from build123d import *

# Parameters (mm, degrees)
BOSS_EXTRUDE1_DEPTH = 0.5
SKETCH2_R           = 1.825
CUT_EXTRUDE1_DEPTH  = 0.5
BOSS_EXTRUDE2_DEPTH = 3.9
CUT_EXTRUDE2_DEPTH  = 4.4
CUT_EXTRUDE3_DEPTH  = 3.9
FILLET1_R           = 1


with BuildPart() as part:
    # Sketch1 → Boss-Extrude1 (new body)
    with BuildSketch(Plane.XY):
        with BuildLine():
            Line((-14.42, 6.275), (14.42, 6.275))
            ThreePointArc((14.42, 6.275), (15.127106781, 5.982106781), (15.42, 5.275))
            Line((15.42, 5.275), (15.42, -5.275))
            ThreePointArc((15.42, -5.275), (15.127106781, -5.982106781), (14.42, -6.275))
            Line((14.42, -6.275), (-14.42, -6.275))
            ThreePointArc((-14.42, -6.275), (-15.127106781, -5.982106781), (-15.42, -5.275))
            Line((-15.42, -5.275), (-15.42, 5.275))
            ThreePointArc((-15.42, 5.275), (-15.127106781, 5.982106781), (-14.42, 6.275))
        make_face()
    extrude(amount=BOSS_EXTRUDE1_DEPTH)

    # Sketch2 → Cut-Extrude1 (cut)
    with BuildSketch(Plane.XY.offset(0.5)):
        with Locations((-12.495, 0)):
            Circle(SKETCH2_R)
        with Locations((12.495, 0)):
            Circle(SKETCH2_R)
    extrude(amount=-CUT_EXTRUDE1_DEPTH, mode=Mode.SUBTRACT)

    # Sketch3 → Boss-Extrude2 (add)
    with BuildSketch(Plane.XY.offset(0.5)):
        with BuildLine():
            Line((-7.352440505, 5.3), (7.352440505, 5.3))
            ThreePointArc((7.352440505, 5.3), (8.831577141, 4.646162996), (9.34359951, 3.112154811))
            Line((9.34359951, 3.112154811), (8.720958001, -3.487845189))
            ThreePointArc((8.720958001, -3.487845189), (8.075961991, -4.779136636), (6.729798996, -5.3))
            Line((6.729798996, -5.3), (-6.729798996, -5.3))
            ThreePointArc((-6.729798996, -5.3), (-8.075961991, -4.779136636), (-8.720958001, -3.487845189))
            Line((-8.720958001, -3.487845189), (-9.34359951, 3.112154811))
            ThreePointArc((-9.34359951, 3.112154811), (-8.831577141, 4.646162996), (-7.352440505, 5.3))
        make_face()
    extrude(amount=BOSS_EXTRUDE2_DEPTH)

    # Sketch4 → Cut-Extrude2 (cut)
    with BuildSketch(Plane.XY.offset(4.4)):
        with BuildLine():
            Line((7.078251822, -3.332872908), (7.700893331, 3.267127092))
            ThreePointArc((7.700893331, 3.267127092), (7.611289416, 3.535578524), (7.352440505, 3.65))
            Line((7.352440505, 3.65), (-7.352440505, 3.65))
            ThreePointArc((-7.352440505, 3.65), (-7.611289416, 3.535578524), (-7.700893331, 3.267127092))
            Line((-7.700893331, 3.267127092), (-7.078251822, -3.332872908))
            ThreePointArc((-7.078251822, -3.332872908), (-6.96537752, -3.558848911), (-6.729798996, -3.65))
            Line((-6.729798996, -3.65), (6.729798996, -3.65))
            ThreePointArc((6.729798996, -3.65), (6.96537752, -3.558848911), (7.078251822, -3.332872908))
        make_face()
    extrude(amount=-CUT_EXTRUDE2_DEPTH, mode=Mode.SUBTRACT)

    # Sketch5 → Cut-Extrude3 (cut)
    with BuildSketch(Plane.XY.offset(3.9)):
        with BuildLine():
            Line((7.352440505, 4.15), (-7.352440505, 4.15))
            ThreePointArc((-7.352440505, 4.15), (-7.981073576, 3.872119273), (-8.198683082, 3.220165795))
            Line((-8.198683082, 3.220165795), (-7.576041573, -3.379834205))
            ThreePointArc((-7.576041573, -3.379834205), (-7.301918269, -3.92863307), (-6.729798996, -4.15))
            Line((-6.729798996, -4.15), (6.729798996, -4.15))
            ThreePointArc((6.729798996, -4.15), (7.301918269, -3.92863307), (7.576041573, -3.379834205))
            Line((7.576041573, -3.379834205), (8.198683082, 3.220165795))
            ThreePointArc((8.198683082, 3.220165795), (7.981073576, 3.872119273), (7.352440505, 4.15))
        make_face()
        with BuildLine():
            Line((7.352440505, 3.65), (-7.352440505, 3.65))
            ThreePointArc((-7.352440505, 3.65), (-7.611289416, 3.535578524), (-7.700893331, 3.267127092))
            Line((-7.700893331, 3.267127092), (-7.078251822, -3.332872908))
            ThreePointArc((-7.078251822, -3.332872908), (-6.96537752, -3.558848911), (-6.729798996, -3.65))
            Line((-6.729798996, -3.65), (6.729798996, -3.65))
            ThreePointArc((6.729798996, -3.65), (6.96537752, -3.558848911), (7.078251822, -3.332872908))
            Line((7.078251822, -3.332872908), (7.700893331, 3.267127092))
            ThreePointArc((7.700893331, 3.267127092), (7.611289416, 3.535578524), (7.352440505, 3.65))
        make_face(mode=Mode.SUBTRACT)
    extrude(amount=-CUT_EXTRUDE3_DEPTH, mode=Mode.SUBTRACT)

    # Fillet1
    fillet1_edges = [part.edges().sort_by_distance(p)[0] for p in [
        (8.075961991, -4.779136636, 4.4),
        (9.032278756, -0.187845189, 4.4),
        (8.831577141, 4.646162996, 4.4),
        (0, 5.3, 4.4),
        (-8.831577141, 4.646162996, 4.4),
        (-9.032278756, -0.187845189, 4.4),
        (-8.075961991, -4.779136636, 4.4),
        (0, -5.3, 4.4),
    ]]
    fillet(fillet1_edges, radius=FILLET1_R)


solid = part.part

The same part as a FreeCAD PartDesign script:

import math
import FreeCAD as App
import Part
import Sketcher
from FreeCAD import Vector


def edges_at(feature, points):
    """Names of the edges that pass closest to the given points."""
    edges = feature.Shape.Edges
    near = lambda p: min(range(len(edges)), key=lambda i: edges[i].distToShape(Part.Vertex(*p))[0])
    return sorted({f"Edge{near(p) + 1}" for p in points})

doc = App.newDocument("Part")
body = doc.addObject("PartDesign::Body", "Body")

# Sketch on XY plane
sketch1 = body.newObject("Sketcher::SketchObject", "Sketch")
sketch1.AttachmentSupport = (doc.getObject("XY_Plane"), [""])
sketch1.MapMode = "FlatFace"
sketch1.addGeometry([
    Part.LineSegment(Vector(14.4, 6.3, 0), Vector(-14.4, 6.3, 0)),  # 0
    Part.ArcOfCircle(Part.Circle(Vector(-14.4, 5.3, 0), Vector(0, 0, 1), 1), math.radians(90), math.radians(180)),  # 1
    Part.LineSegment(Vector(-15.4, 5.3, 0), Vector(-15.4, -5.3, 0)),  # 2
    Part.ArcOfCircle(Part.Circle(Vector(-14.4, -5.3, 0), Vector(0, 0, 1), 1), math.radians(-180), math.radians(-90)),  # 3
    Part.LineSegment(Vector(-14.4, -6.3, 0), Vector(14.4, -6.3, 0)),  # 4
    Part.ArcOfCircle(Part.Circle(Vector(14.4, -5.3, 0), Vector(0, 0, 1), 1), math.radians(-90), math.radians(0)),  # 5
    Part.LineSegment(Vector(15.4, -5.3, 0), Vector(15.4, 5.3, 0)),  # 6
    Part.ArcOfCircle(Part.Circle(Vector(14.4, 5.3, 0), Vector(0, 0, 1), 1), math.radians(0), math.radians(90)),  # 7
], False)
sketch1.addConstraint([
    Sketcher.Constraint("Tangent", 0, 2, 1, 1),
    Sketcher.Constraint("Tangent", 1, 2, 2, 1),
    Sketcher.Constraint("Tangent", 2, 2, 3, 1),
    Sketcher.Constraint("Tangent", 3, 2, 4, 1),
    Sketcher.Constraint("Tangent", 4, 2, 5, 1),
    Sketcher.Constraint("Tangent", 5, 2, 6, 1),
    Sketcher.Constraint("Tangent", 6, 2, 7, 1),
    Sketcher.Constraint("Tangent", 7, 2, 0, 1),
    Sketcher.Constraint("Horizontal", 0),
    Sketcher.Constraint("Vertical", 2),
    Sketcher.Constraint("Horizontal", 4),
    Sketcher.Constraint("Vertical", 6),
    Sketcher.Constraint("Equal", 1, 3),
    Sketcher.Constraint("Equal", 3, 5),
    Sketcher.Constraint("Equal", 5, 7),
    Sketcher.Constraint("Symmetric", 1, 3, 5, 3, -1, 1),
    Sketcher.Constraint("Radius", 1, 1.0),
    Sketcher.Constraint("DistanceX", 0, 2, 0, 1, 28.84),
    Sketcher.Constraint("DistanceY", 2, 2, 2, 1, 10.55),
])
pad1 = body.newObject("PartDesign::Pad", "Pad")
pad1.Profile = sketch1
pad1.Length = 0.5

# Sketch on XY plane
sketch2 = body.newObject("Sketcher::SketchObject", "Sketch001")
sketch2.AttachmentSupport = (doc.getObject("XY_Plane"), [""])
sketch2.MapMode = "FlatFace"
sketch2.AttachmentOffset = App.Placement(Vector(0, 0, 0.5), App.Rotation())
sketch2.addGeometry([
    Part.Circle(Vector(-12.5, 0, 0), Vector(0, 0, 1), 1.8),
    Part.Circle(Vector(12.5, 0, 0), Vector(0, 0, 1), 1.8),
], False)
sketch2.addConstraint([
    Sketcher.Constraint("Equal", 0, 1),
    Sketcher.Constraint("Symmetric", 0, 3, 1, 3, -1, 1),
    Sketcher.Constraint("PointOnObject", 0, 3, -1),
    Sketcher.Constraint("Diameter", 0, 3.65),
    Sketcher.Constraint("DistanceX", 0, 3, 1, 3, 24.99),
])
pocket1 = body.newObject("PartDesign::Pocket", "Pocket")
pocket1.Profile = sketch2
pocket1.Length = 0.5

# Sketch on XY plane
sketch3 = body.newObject("Sketcher::SketchObject", "Sketch002")
sketch3.AttachmentSupport = (doc.getObject("XY_Plane"), [""])
sketch3.MapMode = "FlatFace"
sketch3.AttachmentOffset = App.Placement(Vector(0, 0, 0.5), App.Rotation())
sketch3.addGeometry([
    Part.LineSegment(Vector(7.4, 5.3, 0), Vector(-7.4, 5.3, 0)),  # 0
    Part.ArcOfCircle(Part.Circle(Vector(-7.4, 3.3, 0), Vector(0, 0, 1), 2), math.radians(90), math.radians(185)),  # 1
    Part.LineSegment(Vector(-9.3, 3.1, 0), Vector(-8.7, -3.5, 0)),  # 2
    Part.ArcOfCircle(Part.Circle(Vector(-6.7, -3.3, 0), Vector(0, 0, 1), 2), math.radians(-175), math.radians(-90)),  # 3
    Part.LineSegment(Vector(-6.7, -5.3, 0), Vector(6.7, -5.3, 0)),  # 4
    Part.ArcOfCircle(Part.Circle(Vector(6.7, -3.3, 0), Vector(0, 0, 1), 2), math.radians(-90), math.radians(-5)),  # 5
    Part.LineSegment(Vector(8.7, -3.5, 0), Vector(9.3, 3.1, 0)),  # 6
    Part.ArcOfCircle(Part.Circle(Vector(7.4, 3.3, 0), Vector(0, 0, 1), 2), math.radians(-5), math.radians(90)),  # 7
], False)
sketch3.addConstraint([
    Sketcher.Constraint("Tangent", 0, 2, 1, 1),
    Sketcher.Constraint("Tangent", 1, 2, 2, 1),
    Sketcher.Constraint("Tangent", 2, 2, 3, 1),
    Sketcher.Constraint("Tangent", 3, 2, 4, 1),
    Sketcher.Constraint("Tangent", 4, 2, 5, 1),
    Sketcher.Constraint("Tangent", 5, 2, 6, 1),
    Sketcher.Constraint("Tangent", 6, 2, 7, 1),
    Sketcher.Constraint("Tangent", 7, 2, 0, 1),
    Sketcher.Constraint("Horizontal", 0),
    Sketcher.Constraint("Horizontal", 4),
    Sketcher.Constraint("Equal", 1, 3),
    Sketcher.Constraint("Equal", 3, 5),
    Sketcher.Constraint("Equal", 5, 7),
    Sketcher.Constraint("Symmetric", 2, 2, 5, 2, -2),
    Sketcher.Constraint("Radius", 1, 2.0),
    Sketcher.Constraint("DistanceY", -1, 1, 1, 3, 3.3),
    Sketcher.Constraint("DistanceY", 3, 3, -1, 1, 3.3),
    Sketcher.Constraint("DistanceX", 0, 2, 0, 1, 14.704881),
    Sketcher.Constraint("DistanceX", 3, 3, -1, 1, 6.729799),
])
pad2 = body.newObject("PartDesign::Pad", "Pad001")
pad2.Profile = sketch3
pad2.Length = 3.9

# Sketch on XY plane
sketch4 = body.newObject("Sketcher::SketchObject", "Sketch003")
sketch4.AttachmentSupport = (doc.getObject("XY_Plane"), [""])
sketch4.MapMode = "FlatFace"
sketch4.AttachmentOffset = App.Placement(Vector(0, 0, 4.4), App.Rotation())
sketch4.addGeometry([
    Part.LineSegment(Vector(7.08, -3.33, 0), Vector(7.7, 3.27, 0)),  # 0
    Part.ArcOfCircle(Part.Circle(Vector(7.35, 3.3, 0), Vector(0, 0, 1), 0.35), math.radians(-5), math.radians(90)),  # 1
    Part.LineSegment(Vector(7.35, 3.65, 0), Vector(-7.35, 3.65, 0)),  # 2
    Part.ArcOfCircle(Part.Circle(Vector(-7.35, 3.3, 0), Vector(0, 0, 1), 0.35), math.radians(90), math.radians(185)),  # 3
    Part.LineSegment(Vector(-7.7, 3.27, 0), Vector(-7.08, -3.33, 0)),  # 4
    Part.ArcOfCircle(Part.Circle(Vector(-6.73, -3.3, 0), Vector(0, 0, 1), 0.35), math.radians(-175), math.radians(-90)),  # 5
    Part.LineSegment(Vector(-6.73, -3.65, 0), Vector(6.73, -3.65, 0)),  # 6
    Part.ArcOfCircle(Part.Circle(Vector(6.73, -3.3, 0), Vector(0, 0, 1), 0.35), math.radians(-90), math.radians(-5)),  # 7
], False)
sketch4.addConstraint([
    Sketcher.Constraint("Tangent", 0, 2, 1, 1),
    Sketcher.Constraint("Tangent", 1, 2, 2, 1),
    Sketcher.Constraint("Tangent", 2, 2, 3, 1),
    Sketcher.Constraint("Tangent", 3, 2, 4, 1),
    Sketcher.Constraint("Tangent", 4, 2, 5, 1),
    Sketcher.Constraint("Tangent", 5, 2, 6, 1),
    Sketcher.Constraint("Tangent", 6, 2, 7, 1),
    Sketcher.Constraint("Tangent", 7, 2, 0, 1),
    Sketcher.Constraint("Horizontal", 2),
    Sketcher.Constraint("Horizontal", 6),
    Sketcher.Constraint("Equal", 1, 3),
    Sketcher.Constraint("Equal", 3, 5),
    Sketcher.Constraint("Equal", 5, 7),
    Sketcher.Constraint("Symmetric", 0, 2, 3, 2, -2),
    Sketcher.Constraint("Radius", 1, 0.35),
    Sketcher.Constraint("DistanceY", -1, 1, 1, 3, 3.3),
    Sketcher.Constraint("DistanceY", 5, 3, -1, 1, 3.3),
    Sketcher.Constraint("DistanceX", 2, 2, 2, 1, 14.704881),
    Sketcher.Constraint("DistanceX", 5, 3, -1, 1, 6.729799),
])
pocket2 = body.newObject("PartDesign::Pocket", "Pocket001")
pocket2.Profile = sketch4
pocket2.Length = 4.4

# Sketch on XY plane
sketch5 = body.newObject("Sketcher::SketchObject", "Sketch004")
sketch5.AttachmentSupport = (doc.getObject("XY_Plane"), [""])
sketch5.MapMode = "FlatFace"
sketch5.AttachmentOffset = App.Placement(Vector(0, 0, 3.9), App.Rotation())
sketch5.addGeometry([
    Part.LineSegment(Vector(7.35, 4.15, 0), Vector(-7.35, 4.15, 0)),  # 0
    Part.ArcOfCircle(Part.Circle(Vector(-7.35, 3.3, 0), Vector(0, 0, 1), 0.85), math.radians(90), math.radians(185)),  # 1
    Part.LineSegment(Vector(-8.2, 3.22, 0), Vector(-7.58, -3.38, 0)),  # 2
    Part.ArcOfCircle(Part.Circle(Vector(-6.73, -3.3, 0), Vector(0, 0, 1), 0.85), math.radians(-175), math.radians(-90)),  # 3
    Part.LineSegment(Vector(-6.73, -4.15, 0), Vector(6.73, -4.15, 0)),  # 4
    Part.ArcOfCircle(Part.Circle(Vector(6.73, -3.3, 0), Vector(0, 0, 1), 0.85), math.radians(-90), math.radians(-5)),  # 5
    Part.LineSegment(Vector(7.58, -3.38, 0), Vector(8.2, 3.22, 0)),  # 6
    Part.ArcOfCircle(Part.Circle(Vector(7.35, 3.3, 0), Vector(0, 0, 1), 0.85), math.radians(-5), math.radians(90)),  # 7
    Part.LineSegment(Vector(-7.35, 3.65, 0), Vector(7.35, 3.65, 0)),  # 8
    Part.ArcOfCircle(Part.Circle(Vector(7.35, 3.3, 0), Vector(0, 0, 1), 0.35), math.radians(-5), math.radians(90)),  # 9
    Part.LineSegment(Vector(7.7, 3.27, 0), Vector(7.08, -3.33, 0)),  # 10
    Part.ArcOfCircle(Part.Circle(Vector(6.73, -3.3, 0), Vector(0, 0, 1), 0.35), math.radians(-90), math.radians(-5)),  # 11
    Part.LineSegment(Vector(6.73, -3.65, 0), Vector(-6.73, -3.65, 0)),  # 12
    Part.ArcOfCircle(Part.Circle(Vector(-6.73, -3.3, 0), Vector(0, 0, 1), 0.35), math.radians(-175), math.radians(-90)),  # 13
    Part.LineSegment(Vector(-7.08, -3.33, 0), Vector(-7.7, 3.27, 0)),  # 14
    Part.ArcOfCircle(Part.Circle(Vector(-7.35, 3.3, 0), Vector(0, 0, 1), 0.35), math.radians(90), math.radians(185)),  # 15
], False)
sketch5.addConstraint([
    Sketcher.Constraint("Tangent", 0, 2, 1, 1),
    Sketcher.Constraint("Tangent", 1, 2, 2, 1),
    Sketcher.Constraint("Tangent", 2, 2, 3, 1),
    Sketcher.Constraint("Tangent", 3, 2, 4, 1),
    Sketcher.Constraint("Tangent", 4, 2, 5, 1),
    Sketcher.Constraint("Tangent", 5, 2, 6, 1),
    Sketcher.Constraint("Tangent", 6, 2, 7, 1),
    Sketcher.Constraint("Tangent", 7, 2, 0, 1),
    Sketcher.Constraint("Tangent", 8, 2, 9, 2),
    Sketcher.Constraint("Tangent", 9, 1, 10, 1),
    Sketcher.Constraint("Tangent", 10, 2, 11, 2),
    Sketcher.Constraint("Tangent", 11, 1, 12, 1),
    Sketcher.Constraint("Tangent", 12, 2, 13, 2),
    Sketcher.Constraint("Tangent", 13, 1, 14, 1),
    Sketcher.Constraint("Tangent", 14, 2, 15, 2),
    Sketcher.Constraint("Tangent", 15, 1, 8, 1),
    Sketcher.Constraint("Horizontal", 0),
    Sketcher.Constraint("Horizontal", 4),
    Sketcher.Constraint("Horizontal", 8),
    Sketcher.Constraint("Horizontal", 12),
    Sketcher.Constraint("Coincident", 9, 3, 7, 3),
    Sketcher.Constraint("Coincident", 11, 3, 5, 3),
    Sketcher.Constraint("Coincident", 13, 3, 3, 3),
    Sketcher.Constraint("Coincident", 15, 3, 1, 3),
    Sketcher.Constraint("Equal", 1, 3),
    Sketcher.Constraint("Equal", 3, 5),
    Sketcher.Constraint("Equal", 5, 7),
    Sketcher.Constraint("Equal", 9, 11),
    Sketcher.Constraint("Symmetric", 2, 2, 5, 2, -2),
    Sketcher.Constraint("Radius", 1, 0.85),
    Sketcher.Constraint("Radius", 9, 0.35),
    Sketcher.Constraint("DistanceY", -1, 1, 1, 3, 3.3),
    Sketcher.Constraint("DistanceY", 3, 3, -1, 1, 3.3),
    Sketcher.Constraint("DistanceX", 0, 2, 0, 1, 14.704881),
    Sketcher.Constraint("DistanceX", 3, 3, -1, 1, 6.729799),
])
pocket3 = body.newObject("PartDesign::Pocket", "Pocket002")
pocket3.Profile = sketch5
pocket3.Length = 3.9
doc.recompute()

fillet = body.newObject("PartDesign::Fillet", "Fillet")
fillet.Base = (pocket3, edges_at(pocket3, [
    (8.076, -4.779, 4.4),
    (9.032, -0.188, 4.4),
    (8.832, 4.646, 4.4),
    (0, 5.3, 4.4),
    (-8.832, 4.646, 4.4),
    (-9.032, -0.188, 4.4),
    (-8.076, -4.779, 4.4),
    (0, -5.3, 4.4),
]))
fillet.Radius = 1

doc.recompute()
